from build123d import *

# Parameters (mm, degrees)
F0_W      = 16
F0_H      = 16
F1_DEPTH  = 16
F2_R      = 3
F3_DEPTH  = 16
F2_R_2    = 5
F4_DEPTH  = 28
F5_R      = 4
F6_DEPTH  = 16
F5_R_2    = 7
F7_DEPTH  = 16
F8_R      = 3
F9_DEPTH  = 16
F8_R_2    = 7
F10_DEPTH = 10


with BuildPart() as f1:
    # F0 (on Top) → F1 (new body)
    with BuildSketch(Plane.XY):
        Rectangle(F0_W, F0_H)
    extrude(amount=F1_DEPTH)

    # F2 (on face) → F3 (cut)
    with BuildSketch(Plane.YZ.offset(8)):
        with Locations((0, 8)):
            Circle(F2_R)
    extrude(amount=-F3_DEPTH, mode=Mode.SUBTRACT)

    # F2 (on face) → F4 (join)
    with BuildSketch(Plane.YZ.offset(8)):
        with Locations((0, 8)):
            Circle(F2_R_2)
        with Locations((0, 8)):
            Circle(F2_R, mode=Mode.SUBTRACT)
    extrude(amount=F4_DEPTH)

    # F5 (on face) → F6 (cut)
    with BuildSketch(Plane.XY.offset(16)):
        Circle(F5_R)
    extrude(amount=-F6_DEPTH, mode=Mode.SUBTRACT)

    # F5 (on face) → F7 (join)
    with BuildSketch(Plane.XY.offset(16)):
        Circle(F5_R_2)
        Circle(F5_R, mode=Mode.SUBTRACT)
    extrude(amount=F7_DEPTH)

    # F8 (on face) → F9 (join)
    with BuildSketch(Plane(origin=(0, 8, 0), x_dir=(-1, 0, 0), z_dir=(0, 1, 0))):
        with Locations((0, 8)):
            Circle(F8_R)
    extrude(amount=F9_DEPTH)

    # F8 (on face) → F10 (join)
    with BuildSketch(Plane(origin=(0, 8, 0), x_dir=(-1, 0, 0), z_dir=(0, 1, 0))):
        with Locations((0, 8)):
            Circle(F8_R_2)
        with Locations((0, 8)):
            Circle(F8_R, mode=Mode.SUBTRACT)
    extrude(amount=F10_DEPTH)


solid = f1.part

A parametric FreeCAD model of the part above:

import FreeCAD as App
import Part
import Sketcher

V = App.Vector
Q = App.Units.Quantity


def add_polygon(sketch, points):
    """Adds a closed chain of lines whose ends are joined by coincident constraints."""
    first, n = sketch.GeometryCount, len(points)
    for a, b in zip(points, points[1:] + points[:1]):
        sketch.addGeometry(Part.LineSegment(App.Vector(*a, 0), App.Vector(*b, 0)), False)
    for i in range(n):
        sketch.addConstraint(Sketcher.Constraint("Coincident", first + i, 2, first + (i + 1) % n, 1))

doc = App.newDocument("Part")
body = doc.addObject("PartDesign::Body", "Body")

# Sketch on XY plane
sketch1 = body.newObject("Sketcher::SketchObject", "Sketch")
sketch1.AttachmentSupport = (doc.getObject("XY_Plane"), [""])
sketch1.MapMode = "FlatFace"
add_polygon(sketch1, [(-8, 8), (-8, -8), (8, -8), (8, 8)])  # lines 0-3
sketch1.addConstraint([
    Sketcher.Constraint("Vertical", 0),
    Sketcher.Constraint("Horizontal", 1),
    Sketcher.Constraint("Vertical", 2),
    Sketcher.Constraint("Horizontal", 3),
    Sketcher.Constraint("Symmetric", 0, 2, 2, 2, -1, 1),
    Sketcher.Constraint("Equal", 3, 0),
    Sketcher.Constraint("DistanceX", 1, 1, 1, 2, Q("16 mm")),
])
pad1 = body.newObject("PartDesign::Pad", "Pad")
pad1.Profile = sketch1
pad1.Length = 16

# Sketch on YZ plane
sketch2 = body.newObject("Sketcher::SketchObject", "Sketch001")
sketch2.AttachmentSupport = (doc.getObject("YZ_Plane"), [""])
sketch2.MapMode = "FlatFace"
sketch2.AttachmentOffset = App.Placement(V(0, 0, 8), App.Rotation())
sketch2.addGeometry(Part.Circle(V(0, 8, 0), V(0, 0, 1), 3), False)
sketch2.addConstraint([
    Sketcher.Constraint("PointOnObject", 0, 3, -2),
    Sketcher.Constraint("Diameter", 0, Q("6 mm")),
    Sketcher.Constraint("DistanceY", -1, 1, 0, 3, Q("8 mm")),
])
pocket1 = body.newObject("PartDesign::Pocket", "Pocket")
pocket1.Profile = sketch2
pocket1.Length = 16

# Sketch on YZ plane
sketch3 = body.newObject("Sketcher::SketchObject", "Sketch002")
sketch3.AttachmentSupport = (doc.getObject("YZ_Plane"), [""])
sketch3.MapMode = "FlatFace"
sketch3.AttachmentOffset = App.Placement(V(0, 0, 8), App.Rotation())
sketch3.addGeometry([
    Part.Circle(V(0, 8, 0), V(0, 0, 1), 5),
    Part.Circle(V(0, 8, 0), V(0, 0, 1), 3),
], False)
sketch3.addConstraint([
    Sketcher.Constraint("Coincident", 1, 3, 0, 3),
    Sketcher.Constraint("PointOnObject", 0, 3, -2),
    Sketcher.Constraint("Diameter", 0, Q("10 mm")),
    Sketcher.Constraint("Diameter", 1, Q("6 mm")),
    Sketcher.Constraint("DistanceY", -1, 1, 0, 3, Q("8 mm")),
])
pad2 = body.newObject("PartDesign::Pad", "Pad001")
pad2.Profile = sketch3
pad2.Length = 28

# Sketch on XY plane
sketch4 = body.newObject("Sketcher::SketchObject", "Sketch003")
sketch4.AttachmentSupport = (doc.getObject("XY_Plane"), [""])
sketch4.MapMode = "FlatFace"
sketch4.AttachmentOffset = App.Placement(V(0, 0, 16), App.Rotation())
sketch4.addGeometry(Part.Circle(V(0, 0, 0), V(0, 0, 1), 4), False)
sketch4.addConstraint([
    Sketcher.Constraint("Coincident", 0, 3, -1, 1),
    Sketcher.Constraint("Diameter", 0, Q("8 mm")),
])
pocket2 = body.newObject("PartDesign::Pocket", "Pocket001")
pocket2.Profile = sketch4
pocket2.Length = 16

# Sketch on XY plane
sketch5 = body.newObject("Sketcher::SketchObject", "Sketch004")
sketch5.AttachmentSupport = (doc.getObject("XY_Plane"), [""])
sketch5.MapMode = "FlatFace"
sketch5.AttachmentOffset = App.Placement(V(0, 0, 16), App.Rotation())
sketch5.addGeometry([
    Part.Circle(V(0, 0, 0), V(0, 0, 1), 7),
    Part.Circle(V(0, 0, 0), V(0, 0, 1), 4),
], False)
sketch5.addConstraint([
    Sketcher.Constraint("Coincident", 0, 3, -1, 1),
    Sketcher.Constraint("Coincident", 1, 3, -1, 1),
    Sketcher.Constraint("Diameter", 0, Q("14 mm")),
    Sketcher.Constraint("Diameter", 1, Q("8 mm")),
])
pad3 = body.newObject("PartDesign::Pad", "Pad002")
pad3.Profile = sketch5
pad3.Length = 16

# Sketch on XZ plane
sketch6 = body.newObject("Sketcher::SketchObject", "Sketch005")
sketch6.AttachmentSupport = (doc.getObject("XZ_Plane"), [""])
sketch6.MapMode = "FlatFace"
sketch6.AttachmentOffset = App.Placement(V(0, 0, -8), App.Rotation())
sketch6.addGeometry(Part.Circle(V(0, 8, 0), V(0, 0, 1), 3), False)
sketch6.addConstraint([
    Sketcher.Constraint("PointOnObject", 0, 3, -2),
    Sketcher.Constraint("Diameter", 0, Q("6 mm")),
    Sketcher.Constraint("DistanceY", -1, 1, 0, 3, Q("8 mm")),
])
pad4 = body.newObject("PartDesign::Pad", "Pad003")
pad4.Profile = sketch6
pad4.Length = 16
pad4.Reversed = True

# Sketch on XZ plane
sketch7 = body.newObject("Sketcher::SketchObject", "Sketch006")
sketch7.AttachmentSupport = (doc.getObject("XZ_Plane"), [""])
sketch7.MapMode = "FlatFace"
sketch7.AttachmentOffset = App.Placement(V(0, 0, -8), App.Rotation())
sketch7.addGeometry([
    Part.Circle(V(0, 8, 0), V(0, 0, 1), 7),
    Part.Circle(V(0, 8, 0), V(0, 0, 1), 3),
], False)
sketch7.addConstraint([
    Sketcher.Constraint("Coincident", 1, 3, 0, 3),
    Sketcher.Constraint("PointOnObject", 0, 3, -2),
    Sketcher.Constraint("Diameter", 0, Q("14 mm")),
    Sketcher.Constraint("Diameter", 1, Q("6 mm")),
    Sketcher.Constraint("DistanceY", -1, 1, 0, 3, Q("8 mm")),
])
pad5 = body.newObject("PartDesign::Pad", "Pad004")
pad5.Profile = sketch7
pad5.Length = 10
pad5.Reversed = True

doc.recompute()
